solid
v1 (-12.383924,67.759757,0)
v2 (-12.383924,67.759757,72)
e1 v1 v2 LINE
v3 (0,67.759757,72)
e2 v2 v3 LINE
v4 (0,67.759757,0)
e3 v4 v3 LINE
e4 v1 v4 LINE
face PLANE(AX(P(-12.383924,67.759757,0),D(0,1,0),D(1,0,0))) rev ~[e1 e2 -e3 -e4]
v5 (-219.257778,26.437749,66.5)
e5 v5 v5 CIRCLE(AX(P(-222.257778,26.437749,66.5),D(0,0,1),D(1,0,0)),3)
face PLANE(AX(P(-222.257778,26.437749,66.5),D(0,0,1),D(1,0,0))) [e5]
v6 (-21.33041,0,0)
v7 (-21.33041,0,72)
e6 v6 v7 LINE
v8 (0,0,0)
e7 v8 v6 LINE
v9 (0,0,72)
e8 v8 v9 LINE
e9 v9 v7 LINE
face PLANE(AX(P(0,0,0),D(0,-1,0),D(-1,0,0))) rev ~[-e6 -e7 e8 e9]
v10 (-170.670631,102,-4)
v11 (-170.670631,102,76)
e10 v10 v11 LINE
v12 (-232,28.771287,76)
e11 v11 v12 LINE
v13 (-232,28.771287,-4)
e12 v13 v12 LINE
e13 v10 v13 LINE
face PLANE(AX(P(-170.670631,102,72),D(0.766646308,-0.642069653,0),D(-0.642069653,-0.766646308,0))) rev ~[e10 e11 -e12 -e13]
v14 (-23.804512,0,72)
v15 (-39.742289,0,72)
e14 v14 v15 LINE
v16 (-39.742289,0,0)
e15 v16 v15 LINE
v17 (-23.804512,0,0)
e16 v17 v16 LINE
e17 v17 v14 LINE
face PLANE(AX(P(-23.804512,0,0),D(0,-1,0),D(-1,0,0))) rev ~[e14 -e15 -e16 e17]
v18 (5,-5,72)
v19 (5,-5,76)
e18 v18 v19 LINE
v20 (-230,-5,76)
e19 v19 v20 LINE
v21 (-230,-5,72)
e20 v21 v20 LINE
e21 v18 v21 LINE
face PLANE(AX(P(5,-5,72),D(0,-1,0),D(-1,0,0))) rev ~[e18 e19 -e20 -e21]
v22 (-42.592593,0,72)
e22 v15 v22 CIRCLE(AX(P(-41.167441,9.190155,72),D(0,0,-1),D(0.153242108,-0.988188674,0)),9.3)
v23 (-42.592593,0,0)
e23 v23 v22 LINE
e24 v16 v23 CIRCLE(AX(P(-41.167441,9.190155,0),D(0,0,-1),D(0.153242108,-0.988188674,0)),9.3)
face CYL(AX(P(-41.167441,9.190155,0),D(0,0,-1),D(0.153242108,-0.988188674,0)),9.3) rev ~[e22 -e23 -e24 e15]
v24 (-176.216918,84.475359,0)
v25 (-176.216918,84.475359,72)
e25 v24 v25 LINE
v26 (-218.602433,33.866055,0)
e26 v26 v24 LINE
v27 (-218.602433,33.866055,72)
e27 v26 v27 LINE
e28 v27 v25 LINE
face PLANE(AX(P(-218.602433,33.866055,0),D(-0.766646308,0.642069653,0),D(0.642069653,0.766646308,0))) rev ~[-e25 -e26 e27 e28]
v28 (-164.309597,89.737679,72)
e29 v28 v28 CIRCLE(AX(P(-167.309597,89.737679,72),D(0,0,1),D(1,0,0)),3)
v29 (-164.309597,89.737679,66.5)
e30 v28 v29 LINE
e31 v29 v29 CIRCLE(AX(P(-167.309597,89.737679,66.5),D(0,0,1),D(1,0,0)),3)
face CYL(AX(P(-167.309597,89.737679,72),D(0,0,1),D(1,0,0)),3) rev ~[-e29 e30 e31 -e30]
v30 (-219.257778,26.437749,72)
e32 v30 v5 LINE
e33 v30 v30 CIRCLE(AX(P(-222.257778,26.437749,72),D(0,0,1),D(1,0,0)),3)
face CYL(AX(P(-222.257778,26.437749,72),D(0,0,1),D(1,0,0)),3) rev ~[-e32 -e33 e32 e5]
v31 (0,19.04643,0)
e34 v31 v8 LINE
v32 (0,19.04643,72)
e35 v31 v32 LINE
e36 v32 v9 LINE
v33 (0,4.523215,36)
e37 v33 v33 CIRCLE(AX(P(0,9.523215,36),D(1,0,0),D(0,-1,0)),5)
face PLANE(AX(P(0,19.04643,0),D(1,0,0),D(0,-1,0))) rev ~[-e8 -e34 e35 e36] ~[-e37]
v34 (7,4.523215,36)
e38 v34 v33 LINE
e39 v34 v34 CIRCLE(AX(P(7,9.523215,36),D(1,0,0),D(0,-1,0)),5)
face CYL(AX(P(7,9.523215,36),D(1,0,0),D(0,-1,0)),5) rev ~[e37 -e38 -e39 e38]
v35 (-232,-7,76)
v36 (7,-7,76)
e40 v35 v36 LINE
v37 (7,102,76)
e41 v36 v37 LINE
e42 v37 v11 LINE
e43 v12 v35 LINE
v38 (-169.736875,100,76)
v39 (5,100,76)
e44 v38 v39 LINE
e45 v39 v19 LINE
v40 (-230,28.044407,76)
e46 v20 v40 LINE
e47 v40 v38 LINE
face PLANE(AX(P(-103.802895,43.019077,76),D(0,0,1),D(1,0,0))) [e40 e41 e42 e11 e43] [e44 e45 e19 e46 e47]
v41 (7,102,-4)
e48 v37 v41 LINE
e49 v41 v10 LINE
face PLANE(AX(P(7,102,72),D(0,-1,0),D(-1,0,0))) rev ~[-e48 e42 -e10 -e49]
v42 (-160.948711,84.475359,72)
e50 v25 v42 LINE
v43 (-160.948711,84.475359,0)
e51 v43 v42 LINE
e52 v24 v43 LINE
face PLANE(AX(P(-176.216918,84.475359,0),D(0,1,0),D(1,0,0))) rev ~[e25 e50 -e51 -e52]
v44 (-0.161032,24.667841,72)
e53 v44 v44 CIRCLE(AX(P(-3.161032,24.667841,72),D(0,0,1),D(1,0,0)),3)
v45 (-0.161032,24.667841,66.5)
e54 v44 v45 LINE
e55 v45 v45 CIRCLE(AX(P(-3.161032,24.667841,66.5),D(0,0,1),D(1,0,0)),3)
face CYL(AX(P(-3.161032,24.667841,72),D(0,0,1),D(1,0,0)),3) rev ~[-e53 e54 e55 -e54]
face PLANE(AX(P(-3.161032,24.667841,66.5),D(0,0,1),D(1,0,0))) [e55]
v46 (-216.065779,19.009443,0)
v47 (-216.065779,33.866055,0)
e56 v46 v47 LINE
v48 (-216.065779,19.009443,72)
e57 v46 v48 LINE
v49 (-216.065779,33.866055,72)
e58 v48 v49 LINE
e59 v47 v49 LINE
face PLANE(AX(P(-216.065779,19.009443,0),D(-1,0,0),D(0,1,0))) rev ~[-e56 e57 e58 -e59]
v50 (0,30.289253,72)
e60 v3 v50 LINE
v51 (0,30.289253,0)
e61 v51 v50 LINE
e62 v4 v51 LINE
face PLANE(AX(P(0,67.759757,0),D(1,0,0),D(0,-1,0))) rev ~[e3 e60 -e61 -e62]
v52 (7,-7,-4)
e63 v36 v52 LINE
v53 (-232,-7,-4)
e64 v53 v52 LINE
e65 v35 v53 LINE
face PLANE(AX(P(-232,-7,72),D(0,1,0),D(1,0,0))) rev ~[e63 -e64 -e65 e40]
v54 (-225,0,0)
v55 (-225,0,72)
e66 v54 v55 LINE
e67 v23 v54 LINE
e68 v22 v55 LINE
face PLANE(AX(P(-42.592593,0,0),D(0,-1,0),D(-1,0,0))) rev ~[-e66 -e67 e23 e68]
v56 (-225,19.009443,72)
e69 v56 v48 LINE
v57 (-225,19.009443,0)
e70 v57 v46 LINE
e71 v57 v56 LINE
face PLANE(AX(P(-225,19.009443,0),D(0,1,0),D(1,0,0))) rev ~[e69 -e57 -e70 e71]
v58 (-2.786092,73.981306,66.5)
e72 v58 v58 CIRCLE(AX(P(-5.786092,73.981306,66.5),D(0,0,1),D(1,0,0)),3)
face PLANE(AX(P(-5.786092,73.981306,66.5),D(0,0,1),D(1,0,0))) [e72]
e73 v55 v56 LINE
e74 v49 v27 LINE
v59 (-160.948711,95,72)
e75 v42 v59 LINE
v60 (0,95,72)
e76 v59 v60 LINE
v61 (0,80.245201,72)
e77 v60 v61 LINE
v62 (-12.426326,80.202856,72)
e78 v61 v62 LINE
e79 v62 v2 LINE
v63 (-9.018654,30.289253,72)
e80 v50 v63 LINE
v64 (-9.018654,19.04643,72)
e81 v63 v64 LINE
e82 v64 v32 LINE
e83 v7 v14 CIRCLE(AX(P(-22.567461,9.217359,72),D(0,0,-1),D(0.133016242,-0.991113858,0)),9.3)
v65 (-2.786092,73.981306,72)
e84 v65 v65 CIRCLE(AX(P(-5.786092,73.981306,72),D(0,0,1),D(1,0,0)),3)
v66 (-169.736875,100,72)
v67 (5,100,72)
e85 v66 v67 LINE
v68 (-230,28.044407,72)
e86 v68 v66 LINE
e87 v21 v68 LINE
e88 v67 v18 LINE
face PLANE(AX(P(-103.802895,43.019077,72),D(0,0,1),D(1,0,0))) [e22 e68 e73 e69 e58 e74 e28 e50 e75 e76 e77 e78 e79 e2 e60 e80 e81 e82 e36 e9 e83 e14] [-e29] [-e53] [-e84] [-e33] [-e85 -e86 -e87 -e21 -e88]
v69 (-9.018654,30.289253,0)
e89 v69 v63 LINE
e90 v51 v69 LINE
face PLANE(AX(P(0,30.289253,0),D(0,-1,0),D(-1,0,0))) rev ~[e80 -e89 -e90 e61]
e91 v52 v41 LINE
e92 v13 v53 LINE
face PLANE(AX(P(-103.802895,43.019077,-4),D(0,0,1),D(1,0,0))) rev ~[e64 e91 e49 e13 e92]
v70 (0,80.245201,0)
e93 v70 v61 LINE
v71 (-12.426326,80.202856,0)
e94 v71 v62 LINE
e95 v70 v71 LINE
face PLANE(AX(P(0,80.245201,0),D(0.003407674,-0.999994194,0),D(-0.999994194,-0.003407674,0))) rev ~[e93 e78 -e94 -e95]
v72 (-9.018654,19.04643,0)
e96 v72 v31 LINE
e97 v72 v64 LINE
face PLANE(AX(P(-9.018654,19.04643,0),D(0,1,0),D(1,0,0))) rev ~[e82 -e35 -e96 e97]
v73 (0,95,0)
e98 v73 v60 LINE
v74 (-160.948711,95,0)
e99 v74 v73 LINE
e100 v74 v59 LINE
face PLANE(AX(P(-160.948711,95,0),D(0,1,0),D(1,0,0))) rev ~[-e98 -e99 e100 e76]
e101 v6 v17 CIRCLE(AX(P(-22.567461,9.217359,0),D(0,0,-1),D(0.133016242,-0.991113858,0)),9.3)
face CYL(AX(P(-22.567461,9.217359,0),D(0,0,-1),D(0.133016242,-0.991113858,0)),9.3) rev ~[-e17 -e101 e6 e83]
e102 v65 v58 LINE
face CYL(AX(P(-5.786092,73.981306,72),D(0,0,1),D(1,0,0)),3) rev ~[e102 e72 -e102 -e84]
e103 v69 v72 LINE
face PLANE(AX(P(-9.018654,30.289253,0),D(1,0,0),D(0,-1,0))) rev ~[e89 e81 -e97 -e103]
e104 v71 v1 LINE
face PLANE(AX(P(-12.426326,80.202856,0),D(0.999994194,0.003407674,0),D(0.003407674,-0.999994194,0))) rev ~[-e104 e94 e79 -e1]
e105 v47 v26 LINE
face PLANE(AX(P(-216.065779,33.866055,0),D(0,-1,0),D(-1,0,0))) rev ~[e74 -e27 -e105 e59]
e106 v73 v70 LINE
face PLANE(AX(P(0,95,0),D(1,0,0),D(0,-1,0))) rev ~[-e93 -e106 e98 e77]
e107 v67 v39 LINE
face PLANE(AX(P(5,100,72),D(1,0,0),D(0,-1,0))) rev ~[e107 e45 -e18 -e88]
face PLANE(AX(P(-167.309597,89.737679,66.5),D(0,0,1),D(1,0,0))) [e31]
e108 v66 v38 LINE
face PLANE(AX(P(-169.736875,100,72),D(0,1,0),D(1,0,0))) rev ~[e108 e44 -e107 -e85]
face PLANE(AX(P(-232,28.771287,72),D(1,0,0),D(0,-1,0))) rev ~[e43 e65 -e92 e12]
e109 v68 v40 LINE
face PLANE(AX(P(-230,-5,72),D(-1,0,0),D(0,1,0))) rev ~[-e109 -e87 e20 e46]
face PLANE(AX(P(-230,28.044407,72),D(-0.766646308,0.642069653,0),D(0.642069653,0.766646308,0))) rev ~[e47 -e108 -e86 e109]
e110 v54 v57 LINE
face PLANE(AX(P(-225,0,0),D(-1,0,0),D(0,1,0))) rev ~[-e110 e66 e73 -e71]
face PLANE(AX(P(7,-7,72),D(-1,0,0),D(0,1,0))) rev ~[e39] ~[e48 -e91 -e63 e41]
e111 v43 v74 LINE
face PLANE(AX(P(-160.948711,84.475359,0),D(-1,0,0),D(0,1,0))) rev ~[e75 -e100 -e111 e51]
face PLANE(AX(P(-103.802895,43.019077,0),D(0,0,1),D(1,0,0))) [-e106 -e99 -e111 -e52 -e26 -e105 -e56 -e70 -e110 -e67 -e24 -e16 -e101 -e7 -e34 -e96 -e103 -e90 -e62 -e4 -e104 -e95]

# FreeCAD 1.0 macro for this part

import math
import FreeCAD as App
import Part
import Sketcher

doc = App.newDocument("Part")
params = doc.addObject("Spreadsheet::Sheet", "Params")
for row, (alias, value) in enumerate([
    ("sketch1_radius", "9.3 mm"),
    ("sketch1_width", "239 mm"),
    ("sketch1_height", "109 mm"),
    ("pad1_length", "72 mm"),
    ("sketch2_width", "239 mm"),
    ("sketch2_height", "109 mm"),
    ("pad2_length", "4 mm"),
    ("sketch3_width", "239 mm"),
    ("sketch3_width2", "235 mm"),
    ("sketch3_height", "109 mm"),
    ("sketch3_height2", "105 mm"),
    ("pad3_length", "4 mm"),
    ("sketch4_diameter", "10 mm"),
    ("pocket1_length", "25 mm"),
    ("sketch5_diameter", "6 mm"),
    ("pocket2_length", "5.5 mm"),
], start=1):
    params.set(f"A{row}", alias)
    params.set(f"B{row}", "=" + value)
    params.setAlias(f"B{row}", alias)

body = doc.addObject("PartDesign::Body", "Body")

sketch1 = body.newObject("Sketcher::SketchObject", "Sketch")
sketch1.AttachmentSupport = (doc.getObject("XY_Plane"), [""])
sketch1.MapMode = "FlatFace"
sketch1.addGeometry([
    Part.LineSegment(App.Vector(-232, 28.771287, 0), App.Vector(-232, -7, 0)),
    Part.LineSegment(App.Vector(-232, -7, 0), App.Vector(7, -7, 0)),
    Part.LineSegment(App.Vector(7, -7, 0), App.Vector(7, 102, 0)),
    Part.LineSegment(App.Vector(7, 102, 0), App.Vector(-170.670631, 102, 0)),
    Part.LineSegment(App.Vector(-170.670631, 102, 0), App.Vector(-232, 28.771287, 0)),
    Part.LineSegment(App.Vector(0, 19.04643, 0), App.Vector(0, 0, 0)),
    Part.LineSegment(App.Vector(0, 0, 0), App.Vector(-21.33041, 0, 0)),
    Part.ArcOfCircle(Part.Circle(App.Vector(-22.567461, 9.217359, 0), App.Vector(0, 0, 1), 9.3), math.radians(-97.643924), math.radians(-82.356076)),
    Part.LineSegment(App.Vector(-23.804512, 0, 0), App.Vector(-39.742289, 0, 0)),
    Part.ArcOfCircle(Part.Circle(App.Vector(-41.167441, 9.190155, 0), App.Vector(0, 0, 1), 9.3), math.radians(-98.814858), math.radians(-81.185142)),
    Part.LineSegment(App.Vector(-42.592593, 0, 0), App.Vector(-225, 0, 0)),
    Part.LineSegment(App.Vector(-225, 0, 0), App.Vector(-225, 19.009443, 0)),
    Part.LineSegment(App.Vector(-225, 19.009443, 0), App.Vector(-216.065779, 19.009443, 0)),
    Part.LineSegment(App.Vector(-216.065779, 19.009443, 0), App.Vector(-216.065779, 33.866055, 0)),
    Part.LineSegment(App.Vector(-216.065779, 33.866055, 0), App.Vector(-218.602433, 33.866055, 0)),
    Part.LineSegment(App.Vector(-218.602433, 33.866055, 0), App.Vector(-176.216918, 84.475359, 0)),
    Part.LineSegment(App.Vector(-176.216918, 84.475359, 0), App.Vector(-160.948711, 84.475359, 0)),
    Part.LineSegment(App.Vector(-160.948711, 84.475359, 0), App.Vector(-160.948711, 95, 0)),
    Part.LineSegment(App.Vector(-160.948711, 95, 0), App.Vector(0, 95, 0)),
    Part.LineSegment(App.Vector(0, 95, 0), App.Vector(0, 80.245201, 0)),
    Part.LineSegment(App.Vector(0, 80.245201, 0), App.Vector(-12.426326, 80.202856, 0)),
    Part.LineSegment(App.Vector(-12.426326, 80.202856, 0), App.Vector(-12.383924, 67.759757, 0)),
    Part.LineSegment(App.Vector(-12.383924, 67.759757, 0), App.Vector(0, 67.759757, 0)),
    Part.LineSegment(App.Vector(0, 67.759757, 0), App.Vector(0, 30.289253, 0)),
    Part.LineSegment(App.Vector(0, 30.289253, 0), App.Vector(-9.018654, 30.289253, 0)),
    Part.LineSegment(App.Vector(-9.018654, 30.289253, 0), App.Vector(-9.018654, 19.04643, 0)),
    Part.LineSegment(App.Vector(-9.018654, 19.04643, 0), App.Vector(0, 19.04643, 0)),
], False)
sketch1.addConstraint([
    Sketcher.Constraint("Coincident", 0, 2, 1, 1),
    Sketcher.Constraint("Coincident", 1, 2, 2, 1),
    Sketcher.Constraint("Coincident", 2, 2, 3, 1),
    Sketcher.Constraint("Coincident", 3, 2, 4, 1),
    Sketcher.Constraint("Coincident", 4, 2, 0, 1),
    Sketcher.Constraint("Coincident", 5, 2, 6, 1),
    Sketcher.Constraint("Coincident", 6, 2, 7, 2),
    Sketcher.Constraint("Coincident", 7, 1, 8, 1),
    Sketcher.Constraint("Coincident", 8, 2, 9, 2),
    Sketcher.Constraint("Coincident", 9, 1, 10, 1),
    Sketcher.Constraint("Coincident", 10, 2, 11, 1),
    Sketcher.Constraint("Coincident", 11, 2, 12, 1),
    Sketcher.Constraint("Coincident", 12, 2, 13, 1),
    Sketcher.Constraint("Coincident", 13, 2, 14, 1),
    Sketcher.Constraint("Coincident", 14, 2, 15, 1),
    Sketcher.Constraint("Coincident", 15, 2, 16, 1),
    Sketcher.Constraint("Coincident", 16, 2, 17, 1),
    Sketcher.Constraint("Coincident", 17, 2, 18, 1),
    Sketcher.Constraint("Coincident", 18, 2, 19, 1),
    Sketcher.Constraint("Coincident", 19, 2, 20, 1),
    Sketcher.Constraint("Coincident", 20, 2, 21, 1),
    Sketcher.Constraint("Coincident", 21, 2, 22, 1),
    Sketcher.Constraint("Coincident", 22, 2, 23, 1),
    Sketcher.Constraint("Coincident", 23, 2, 24, 1),
    Sketcher.Constraint("Coincident", 24, 2, 25, 1),
    Sketcher.Constraint("Coincident", 25, 2, 26, 1),
    Sketcher.Constraint("Coincident", 26, 2, 5, 1),
    Sketcher.Constraint("Vertical", 0),
    Sketcher.Constraint("Horizontal", 1),
    Sketcher.Constraint("Vertical", 2),
    Sketcher.Constraint("Horizontal", 3),
    Sketcher.Constraint("Vertical", 5),
    Sketcher.Constraint("Horizontal", 6),
    Sketcher.Constraint("Horizontal", 8),
    Sketcher.Constraint("Horizontal", 10),
    Sketcher.Constraint("Vertical", 11),
    Sketcher.Constraint("Horizontal", 12),
    Sketcher.Constraint("Vertical", 13),
    Sketcher.Constraint("Horizontal", 14),
    Sketcher.Constraint("Horizontal", 16),
    Sketcher.Constraint("Vertical", 17),
    Sketcher.Constraint("Horizontal", 18),
    Sketcher.Constraint("Vertical", 19),
    Sketcher.Constraint("Horizontal", 22),
    Sketcher.Constraint("Vertical", 23),
    Sketcher.Constraint("Horizontal", 24),
    Sketcher.Constraint("Vertical", 25),
    Sketcher.Constraint("Horizontal", 26),
    Sketcher.Constraint("Coincident", 5, 2, -1, 1),
    Sketcher.Constraint("Equal", 7, 9),
    Sketcher.Constraint("PointOnObject", 7, 1, -1),
    Sketcher.Constraint("PointOnObject", 9, 1, -1),
    Sketcher.Constraint("PointOnObject", 18, 2, -2),
    Sketcher.Constraint("PointOnObject", 22, 2, -2),
    Sketcher.Constraint("Parallel", 4, 15),
    Sketcher.Constraint("Perpendicular", 20, 21),
    Sketcher.Constraint("Radius", 7, 9.3),
    Sketcher.Constraint("DistanceX", 1, 1, 1, 2, 239.0),
    Sketcher.Constraint("DistanceY", 2, 1, 2, 2, 109.0),
    Sketcher.Constraint("DistanceX", 0, 2, -1, 1, 232.0),
    Sketcher.Constraint("DistanceY", 0, 2, -1, 1, 7.0),
    Sketcher.Constraint("DistanceX", 10, 2, -1, 1, 225.0),
    Sketcher.Constraint("DistanceY", -1, 1, 17, 2, 95.0),
    Sketcher.Constraint("DistanceY", 19, 2, 19, 1, 14.754799),
    Sketcher.Constraint("Distance", 20, 12.426398),
    Sketcher.Constraint("DistanceX", 3, 2, 3, 1, 177.670631),
    Sketcher.Constraint("DistanceX", 6, 2, 6, 1, 21.33041),
    Sketcher.Constraint("DistanceX", 12, 1, 12, 2, 8.934221),
    Sketcher.Constraint("DistanceX", 18, 1, 18, 2, 160.948711),
    Sketcher.Constraint("DistanceY", 5, 2, 5, 1, 19.04643),
    Sketcher.Constraint("DistanceY", 13, 1, 13, 2, 14.856612),
    Sketcher.Constraint("DistanceY", 17, 1, 17, 2, 10.524641),
    Sketcher.Constraint("DistanceY", 9, 3, 20, 2, 71.012701),
    Sketcher.Constraint("DistanceY", 21, 2, 20, 2, 12.443099),
    Sketcher.Constraint("Distance", 4, 95.518249),
    Sketcher.Constraint("Distance", 15, 66.013889),
    Sketcher.Constraint("DistanceX", 8, 2, 8, 1, 15.937777),
    Sketcher.Constraint("DistanceX", 10, 2, 10, 1, 182.407407),
    Sketcher.Constraint("DistanceX", 14, 2, 14, 1, 2.536653),
    Sketcher.Constraint("DistanceX", 22, 1, 22, 2, 12.383924),
    Sketcher.Constraint("DistanceX", 24, 2, 24, 1, 9.018654),
    Sketcher.Constraint("DistanceY", 23, 2, 23, 1, 37.470503),
])
sketch1.setExpression("Constraints[56]", "Params.sketch1_radius")
sketch1.setExpression("Constraints[57]", "Params.sketch1_width")
sketch1.setExpression("Constraints[58]", "Params.sketch1_height")
pad1 = body.newObject("PartDesign::Pad", "Pad")
pad1.Profile = sketch1
pad1.setExpression("Length", "Params.pad1_length")

sketch2 = body.newObject("Sketcher::SketchObject", "Sketch001")
sketch2.AttachmentSupport = (doc.getObject("XY_Plane"), [""])
sketch2.MapMode = "FlatFace"
sketch2.addGeometry([
    Part.LineSegment(App.Vector(-170.670631, 102, 0), App.Vector(-232, 28.771287, 0)),
    Part.LineSegment(App.Vector(-232, 28.771287, 0), App.Vector(-232, -7, 0)),
    Part.LineSegment(App.Vector(-232, -7, 0), App.Vector(7, -7, 0)),
    Part.LineSegment(App.Vector(7, -7, 0), App.Vector(7, 102, 0)),
    Part.LineSegment(App.Vector(7, 102, 0), App.Vector(-170.670631, 102, 0)),
], False)
sketch2.addConstraint([
    Sketcher.Constraint("Coincident", 0, 2, 1, 1),
    Sketcher.Constraint("Coincident", 1, 2, 2, 1),
    Sketcher.Constraint("Coincident", 2, 2, 3, 1),
    Sketcher.Constraint("Coincident", 3, 2, 4, 1),
    Sketcher.Constraint("Coincident", 4, 2, 0, 1),
    Sketcher.Constraint("Vertical", 1),
    Sketcher.Constraint("Horizontal", 2),
    Sketcher.Constraint("Vertical", 3),
    Sketcher.Constraint("Horizontal", 4),
    Sketcher.Constraint("DistanceX", 2, 1, 2, 2, 239.0),
    Sketcher.Constraint("DistanceY", 3, 1, 3, 2, 109.0),
    Sketcher.Constraint("DistanceX", 0, 2, -1, 1, 232.0),
    Sketcher.Constraint("DistanceY", 1, 2, -1, 1, 7.0),
    Sketcher.Constraint("DistanceX", 4, 2, 4, 1, 177.670631),
    Sketcher.Constraint("Distance", 0, 95.518249),
])
sketch2.setExpression("Constraints[9]", "Params.sketch2_width")
sketch2.setExpression("Constraints[10]", "Params.sketch2_height")
pad2 = body.newObject("PartDesign::Pad", "Pad001")
pad2.Profile = sketch2
pad2.setExpression("Length", "Params.pad2_length")
pad2.Reversed = True

sketch3 = body.newObject("Sketcher::SketchObject", "Sketch002")
sketch3.AttachmentSupport = (doc.getObject("XY_Plane"), [""])
sketch3.MapMode = "FlatFace"
sketch3.AttachmentOffset = App.Placement(App.Vector(0, 0, 72), App.Rotation())
sketch3.addGeometry([
    Part.LineSegment(App.Vector(7, 102, 0), App.Vector(-170.670631, 102, 0)),
    Part.LineSegment(App.Vector(-170.670631, 102, 0), App.Vector(-232, 28.771287, 0)),
    Part.LineSegment(App.Vector(-232, 28.771287, 0), App.Vector(-232, -7, 0)),
    Part.LineSegment(App.Vector(-232, -7, 0), App.Vector(7, -7, 0)),
    Part.LineSegment(App.Vector(7, -7, 0), App.Vector(7, 102, 0)),
    Part.LineSegment(App.Vector(5, -5, 0), App.Vector(-230, -5, 0)),
    Part.LineSegment(App.Vector(-230, -5, 0), App.Vector(-230, 28.044407, 0)),
    Part.LineSegment(App.Vector(-230, 28.044407, 0), App.Vector(-169.736875, 100, 0)),
    Part.LineSegment(App.Vector(-169.736875, 100, 0), App.Vector(5, 100, 0)),
    Part.LineSegment(App.Vector(5, 100, 0), App.Vector(5, -5, 0)),
], False)
sketch3.addConstraint([
    Sketcher.Constraint("Coincident", 0, 2, 1, 1),
    Sketcher.Constraint("Coincident", 1, 2, 2, 1),
    Sketcher.Constraint("Coincident", 2, 2, 3, 1),
    Sketcher.Constraint("Coincident", 3, 2, 4, 1),
    Sketcher.Constraint("Coincident", 4, 2, 0, 1),
    Sketcher.Constraint("Coincident", 5, 2, 6, 1),
    Sketcher.Constraint("Coincident", 6, 2, 7, 1),
    Sketcher.Constraint("Coincident", 7, 2, 8, 1),
    Sketcher.Constraint("Coincident", 8, 2, 9, 1),
    Sketcher.Constraint("Coincident", 9, 2, 5, 1),
    Sketcher.Constraint("Horizontal", 0),
    Sketcher.Constraint("Vertical", 2),
    Sketcher.Constraint("Horizontal", 3),
    Sketcher.Constraint("Vertical", 4),
    Sketcher.Constraint("Horizontal", 5),
    Sketcher.Constraint("Vertical", 6),
    Sketcher.Constraint("Horizontal", 8),
    Sketcher.Constraint("Vertical", 9),
    Sketcher.Constraint("Parallel", 1, 7),
    Sketcher.Constraint("DistanceX", 3, 1, 3, 2, 239.0),
    Sketcher.Constraint("DistanceX", 5, 2, 5, 1, 235.0),
    Sketcher.Constraint("DistanceY", 4, 1, 4, 2, 109.0),
    Sketcher.Constraint("DistanceY", 9, 2, 9, 1, 105.0),
    Sketcher.Constraint("DistanceY", -1, 1, 0, 2, 102.0),
    Sketcher.Constraint("DistanceX", 1, 2, -1, 1, 232.0),
    Sketcher.Constraint("DistanceX", 5, 2, -1, 1, 230.0),
    Sketcher.Constraint("DistanceY", 5, 2, -1, 1, 5.0),
    Sketcher.Constraint("DistanceX", 0, 2, 0, 1, 177.670631),
    Sketcher.Constraint("Distance", 1, 95.518249),
    Sketcher.Constraint("DistanceX", 8, 1, 8, 2, 174.736875),
])
sketch3.setExpression("Constraints[19]", "Params.sketch3_width")
sketch3.setExpression("Constraints[20]", "Params.sketch3_width2")
sketch3.setExpression("Constraints[21]", "Params.sketch3_height")
sketch3.setExpression("Constraints[22]", "Params.sketch3_height2")
pad3 = body.newObject("PartDesign::Pad", "Pad002")
pad3.Profile = sketch3
pad3.setExpression("Length", "Params.pad3_length")

sketch4 = body.newObject("Sketcher::SketchObject", "Sketch003")
sketch4.AttachmentSupport = (doc.getObject("YZ_Plane"), [""])
sketch4.MapMode = "FlatFace"
sketch4.AttachmentOffset = App.Placement(App.Vector(0, 0, 7), App.Rotation())
sketch4.addGeometry(Part.Circle(App.Vector(9.523215, 36, 0), App.Vector(0, 0, 1), 5), False)
sketch4.addConstraint([
    Sketcher.Constraint("Diameter", 0, 10.0),
    Sketcher.Constraint("DistanceY", -1, 1, 0, 3, 36.0),
    Sketcher.Constraint("DistanceX", -1, 1, 0, 3, 9.523215),
])
sketch4.setExpression("Constraints[0]", "Params.sketch4_diameter")
pocket1 = body.newObject("PartDesign::Pocket", "Pocket")
pocket1.Profile = sketch4
pocket1.setExpression("Length", "Params.pocket1_length")

sketch5 = body.newObject("Sketcher::SketchObject", "Sketch004")
sketch5.AttachmentSupport = (doc.getObject("XY_Plane"), [""])
sketch5.MapMode = "FlatFace"
sketch5.AttachmentOffset = App.Placement(App.Vector(0, 0, 72), App.Rotation())
sketch5.addGeometry([
    Part.Circle(App.Vector(-167.309597, 89.737679, 0), App.Vector(0, 0, 1), 3),
    Part.Circle(App.Vector(-222.257778, 26.437749, 0), App.Vector(0, 0, 1), 3),
    Part.Circle(App.Vector(-5.786092, 73.981306, 0), App.Vector(0, 0, 1), 3),
    Part.Circle(App.Vector(-3.161032, 24.667841, 0), App.Vector(0, 0, 1), 3),
], False)
sketch5.addConstraint([
    Sketcher.Constraint("Equal", 0, 1),
    Sketcher.Constraint("Equal", 1, 2),
    Sketcher.Constraint("Equal", 2, 3),
    Sketcher.Constraint("Diameter", 0, 6.0),
    Sketcher.Constraint("DistanceY", -1, 1, 0, 3, 89.737679),
    Sketcher.Constraint("DistanceX", 1, 3, -1, 1, 222.257778),
    Sketcher.Constraint("DistanceY", -1, 1, 1, 3, 26.437749),
    Sketcher.Constraint("DistanceX", 2, 3, -1, 1, 5.786092),
    Sketcher.Constraint("DistanceY", -1, 1, 3, 3, 24.667841),
    Sketcher.Constraint("DistanceX", 1, 3, 0, 3, 54.948181),
    Sketcher.Constraint("DistanceX", 2, 3, 3, 3, 2.625059),
    Sketcher.Constraint("DistanceY", -1, 1, 2, 3, 73.981306),
])
sketch5.setExpression("Constraints[3]", "Params.sketch5_diameter")
pocket2 = body.newObject("PartDesign::Pocket", "Pocket001")
pocket2.Profile = sketch5
pocket2.setExpression("Length", "Params.pocket2_length")

doc.recompute()
